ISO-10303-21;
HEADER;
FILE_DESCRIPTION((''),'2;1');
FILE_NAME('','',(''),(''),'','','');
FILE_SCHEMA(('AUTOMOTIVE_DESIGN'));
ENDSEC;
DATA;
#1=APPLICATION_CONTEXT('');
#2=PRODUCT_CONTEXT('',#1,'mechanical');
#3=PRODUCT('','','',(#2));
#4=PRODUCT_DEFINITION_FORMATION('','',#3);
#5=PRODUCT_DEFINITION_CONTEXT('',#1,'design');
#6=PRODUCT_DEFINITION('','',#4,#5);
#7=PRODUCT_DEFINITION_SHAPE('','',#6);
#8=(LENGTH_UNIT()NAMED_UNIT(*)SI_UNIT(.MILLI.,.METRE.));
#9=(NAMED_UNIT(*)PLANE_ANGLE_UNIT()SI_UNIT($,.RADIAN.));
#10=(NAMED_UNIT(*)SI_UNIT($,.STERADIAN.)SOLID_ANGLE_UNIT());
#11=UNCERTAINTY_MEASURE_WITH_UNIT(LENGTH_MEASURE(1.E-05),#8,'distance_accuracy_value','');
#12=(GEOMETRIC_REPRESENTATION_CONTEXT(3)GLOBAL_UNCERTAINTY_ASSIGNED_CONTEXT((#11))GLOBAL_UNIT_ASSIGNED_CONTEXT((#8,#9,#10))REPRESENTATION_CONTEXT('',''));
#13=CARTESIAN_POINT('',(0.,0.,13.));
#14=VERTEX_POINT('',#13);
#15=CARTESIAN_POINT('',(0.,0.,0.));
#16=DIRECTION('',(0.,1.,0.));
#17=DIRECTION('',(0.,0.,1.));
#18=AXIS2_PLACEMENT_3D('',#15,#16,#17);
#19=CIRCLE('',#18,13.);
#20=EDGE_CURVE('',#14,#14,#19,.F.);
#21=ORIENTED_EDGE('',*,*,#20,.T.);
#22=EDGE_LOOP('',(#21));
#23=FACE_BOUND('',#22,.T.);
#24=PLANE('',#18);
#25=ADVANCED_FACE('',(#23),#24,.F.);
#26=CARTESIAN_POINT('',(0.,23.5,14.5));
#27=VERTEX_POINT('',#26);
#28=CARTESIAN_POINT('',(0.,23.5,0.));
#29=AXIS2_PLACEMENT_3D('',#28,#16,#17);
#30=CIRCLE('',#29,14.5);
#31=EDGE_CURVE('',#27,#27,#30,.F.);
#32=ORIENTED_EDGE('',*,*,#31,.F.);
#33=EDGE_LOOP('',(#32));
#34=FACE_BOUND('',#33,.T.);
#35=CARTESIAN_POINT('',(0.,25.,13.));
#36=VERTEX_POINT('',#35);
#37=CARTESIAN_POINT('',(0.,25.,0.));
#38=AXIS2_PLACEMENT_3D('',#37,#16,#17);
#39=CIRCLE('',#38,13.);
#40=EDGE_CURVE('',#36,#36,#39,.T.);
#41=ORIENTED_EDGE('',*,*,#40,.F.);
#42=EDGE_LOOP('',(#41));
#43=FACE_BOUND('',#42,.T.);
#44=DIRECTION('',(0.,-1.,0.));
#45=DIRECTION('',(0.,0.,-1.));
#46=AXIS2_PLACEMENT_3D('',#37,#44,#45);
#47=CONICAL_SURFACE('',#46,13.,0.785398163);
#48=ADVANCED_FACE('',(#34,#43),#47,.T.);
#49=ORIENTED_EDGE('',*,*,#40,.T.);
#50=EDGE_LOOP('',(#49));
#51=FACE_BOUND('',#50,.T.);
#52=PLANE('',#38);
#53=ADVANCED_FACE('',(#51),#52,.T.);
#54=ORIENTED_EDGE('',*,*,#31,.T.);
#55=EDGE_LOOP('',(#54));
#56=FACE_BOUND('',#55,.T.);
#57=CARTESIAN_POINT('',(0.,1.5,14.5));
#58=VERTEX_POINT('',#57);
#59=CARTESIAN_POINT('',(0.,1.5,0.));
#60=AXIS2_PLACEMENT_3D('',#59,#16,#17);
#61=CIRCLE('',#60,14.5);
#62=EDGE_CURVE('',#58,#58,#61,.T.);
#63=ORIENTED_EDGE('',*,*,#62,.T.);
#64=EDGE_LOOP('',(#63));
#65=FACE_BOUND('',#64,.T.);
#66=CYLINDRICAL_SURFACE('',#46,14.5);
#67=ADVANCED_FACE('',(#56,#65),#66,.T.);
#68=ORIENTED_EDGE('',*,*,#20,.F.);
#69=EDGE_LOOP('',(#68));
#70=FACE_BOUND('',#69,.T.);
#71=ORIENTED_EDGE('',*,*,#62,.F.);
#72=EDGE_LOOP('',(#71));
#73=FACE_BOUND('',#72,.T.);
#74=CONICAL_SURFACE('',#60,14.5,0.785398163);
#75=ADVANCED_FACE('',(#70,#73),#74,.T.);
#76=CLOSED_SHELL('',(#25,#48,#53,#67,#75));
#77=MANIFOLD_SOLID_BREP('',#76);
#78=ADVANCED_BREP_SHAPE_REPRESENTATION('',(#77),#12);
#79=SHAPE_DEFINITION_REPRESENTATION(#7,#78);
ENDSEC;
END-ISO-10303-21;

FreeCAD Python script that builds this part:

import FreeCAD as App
import Part
import Sketcher

V = App.Vector
Q = App.Units.Quantity


def edges_at(feature, points):
    """Names of the edges that pass closest to the given points."""
    edges = feature.Shape.Edges
    near = lambda p: min(range(len(edges)), key=lambda i: edges[i].distToShape(Part.Vertex(*p))[0])
    return sorted({f"Edge{near(p) + 1}" for p in points})

doc = App.newDocument("Part")
body = doc.addObject("PartDesign::Body", "Body")

sketch1 = doc.addObject("Sketcher::SketchObject", "Sketch")
body.addObject(sketch1)
sketch1.AttachmentSupport = (doc.XZ_Plane, [""])
sketch1.MapMode = "FlatFace"
sketch1.addGeometry(Part.Circle(V(0, 0, 0), V(0, 0, 1), 14.5), False)
sketch1.addConstraint(Sketcher.Constraint("Coincident", 0, 3, -1, 1))
sketch1.addConstraint(Sketcher.Constraint("Diameter", 0, Q("29 mm")))
pad1 = doc.addObject("PartDesign::Pad", "Pad")
body.addObject(pad1)
pad1.Profile = sketch1
pad1.Length = 25
pad1.Reversed = True
doc.recompute()

chamfer = doc.addObject("PartDesign::Chamfer", "Chamfer")
body.addObject(chamfer)
chamfer.Base = (pad1, edges_at(pad1, [(0, 0, -14.5), (0, 25, -14.5)]))
chamfer.Size = 1.5

doc.recompute()
